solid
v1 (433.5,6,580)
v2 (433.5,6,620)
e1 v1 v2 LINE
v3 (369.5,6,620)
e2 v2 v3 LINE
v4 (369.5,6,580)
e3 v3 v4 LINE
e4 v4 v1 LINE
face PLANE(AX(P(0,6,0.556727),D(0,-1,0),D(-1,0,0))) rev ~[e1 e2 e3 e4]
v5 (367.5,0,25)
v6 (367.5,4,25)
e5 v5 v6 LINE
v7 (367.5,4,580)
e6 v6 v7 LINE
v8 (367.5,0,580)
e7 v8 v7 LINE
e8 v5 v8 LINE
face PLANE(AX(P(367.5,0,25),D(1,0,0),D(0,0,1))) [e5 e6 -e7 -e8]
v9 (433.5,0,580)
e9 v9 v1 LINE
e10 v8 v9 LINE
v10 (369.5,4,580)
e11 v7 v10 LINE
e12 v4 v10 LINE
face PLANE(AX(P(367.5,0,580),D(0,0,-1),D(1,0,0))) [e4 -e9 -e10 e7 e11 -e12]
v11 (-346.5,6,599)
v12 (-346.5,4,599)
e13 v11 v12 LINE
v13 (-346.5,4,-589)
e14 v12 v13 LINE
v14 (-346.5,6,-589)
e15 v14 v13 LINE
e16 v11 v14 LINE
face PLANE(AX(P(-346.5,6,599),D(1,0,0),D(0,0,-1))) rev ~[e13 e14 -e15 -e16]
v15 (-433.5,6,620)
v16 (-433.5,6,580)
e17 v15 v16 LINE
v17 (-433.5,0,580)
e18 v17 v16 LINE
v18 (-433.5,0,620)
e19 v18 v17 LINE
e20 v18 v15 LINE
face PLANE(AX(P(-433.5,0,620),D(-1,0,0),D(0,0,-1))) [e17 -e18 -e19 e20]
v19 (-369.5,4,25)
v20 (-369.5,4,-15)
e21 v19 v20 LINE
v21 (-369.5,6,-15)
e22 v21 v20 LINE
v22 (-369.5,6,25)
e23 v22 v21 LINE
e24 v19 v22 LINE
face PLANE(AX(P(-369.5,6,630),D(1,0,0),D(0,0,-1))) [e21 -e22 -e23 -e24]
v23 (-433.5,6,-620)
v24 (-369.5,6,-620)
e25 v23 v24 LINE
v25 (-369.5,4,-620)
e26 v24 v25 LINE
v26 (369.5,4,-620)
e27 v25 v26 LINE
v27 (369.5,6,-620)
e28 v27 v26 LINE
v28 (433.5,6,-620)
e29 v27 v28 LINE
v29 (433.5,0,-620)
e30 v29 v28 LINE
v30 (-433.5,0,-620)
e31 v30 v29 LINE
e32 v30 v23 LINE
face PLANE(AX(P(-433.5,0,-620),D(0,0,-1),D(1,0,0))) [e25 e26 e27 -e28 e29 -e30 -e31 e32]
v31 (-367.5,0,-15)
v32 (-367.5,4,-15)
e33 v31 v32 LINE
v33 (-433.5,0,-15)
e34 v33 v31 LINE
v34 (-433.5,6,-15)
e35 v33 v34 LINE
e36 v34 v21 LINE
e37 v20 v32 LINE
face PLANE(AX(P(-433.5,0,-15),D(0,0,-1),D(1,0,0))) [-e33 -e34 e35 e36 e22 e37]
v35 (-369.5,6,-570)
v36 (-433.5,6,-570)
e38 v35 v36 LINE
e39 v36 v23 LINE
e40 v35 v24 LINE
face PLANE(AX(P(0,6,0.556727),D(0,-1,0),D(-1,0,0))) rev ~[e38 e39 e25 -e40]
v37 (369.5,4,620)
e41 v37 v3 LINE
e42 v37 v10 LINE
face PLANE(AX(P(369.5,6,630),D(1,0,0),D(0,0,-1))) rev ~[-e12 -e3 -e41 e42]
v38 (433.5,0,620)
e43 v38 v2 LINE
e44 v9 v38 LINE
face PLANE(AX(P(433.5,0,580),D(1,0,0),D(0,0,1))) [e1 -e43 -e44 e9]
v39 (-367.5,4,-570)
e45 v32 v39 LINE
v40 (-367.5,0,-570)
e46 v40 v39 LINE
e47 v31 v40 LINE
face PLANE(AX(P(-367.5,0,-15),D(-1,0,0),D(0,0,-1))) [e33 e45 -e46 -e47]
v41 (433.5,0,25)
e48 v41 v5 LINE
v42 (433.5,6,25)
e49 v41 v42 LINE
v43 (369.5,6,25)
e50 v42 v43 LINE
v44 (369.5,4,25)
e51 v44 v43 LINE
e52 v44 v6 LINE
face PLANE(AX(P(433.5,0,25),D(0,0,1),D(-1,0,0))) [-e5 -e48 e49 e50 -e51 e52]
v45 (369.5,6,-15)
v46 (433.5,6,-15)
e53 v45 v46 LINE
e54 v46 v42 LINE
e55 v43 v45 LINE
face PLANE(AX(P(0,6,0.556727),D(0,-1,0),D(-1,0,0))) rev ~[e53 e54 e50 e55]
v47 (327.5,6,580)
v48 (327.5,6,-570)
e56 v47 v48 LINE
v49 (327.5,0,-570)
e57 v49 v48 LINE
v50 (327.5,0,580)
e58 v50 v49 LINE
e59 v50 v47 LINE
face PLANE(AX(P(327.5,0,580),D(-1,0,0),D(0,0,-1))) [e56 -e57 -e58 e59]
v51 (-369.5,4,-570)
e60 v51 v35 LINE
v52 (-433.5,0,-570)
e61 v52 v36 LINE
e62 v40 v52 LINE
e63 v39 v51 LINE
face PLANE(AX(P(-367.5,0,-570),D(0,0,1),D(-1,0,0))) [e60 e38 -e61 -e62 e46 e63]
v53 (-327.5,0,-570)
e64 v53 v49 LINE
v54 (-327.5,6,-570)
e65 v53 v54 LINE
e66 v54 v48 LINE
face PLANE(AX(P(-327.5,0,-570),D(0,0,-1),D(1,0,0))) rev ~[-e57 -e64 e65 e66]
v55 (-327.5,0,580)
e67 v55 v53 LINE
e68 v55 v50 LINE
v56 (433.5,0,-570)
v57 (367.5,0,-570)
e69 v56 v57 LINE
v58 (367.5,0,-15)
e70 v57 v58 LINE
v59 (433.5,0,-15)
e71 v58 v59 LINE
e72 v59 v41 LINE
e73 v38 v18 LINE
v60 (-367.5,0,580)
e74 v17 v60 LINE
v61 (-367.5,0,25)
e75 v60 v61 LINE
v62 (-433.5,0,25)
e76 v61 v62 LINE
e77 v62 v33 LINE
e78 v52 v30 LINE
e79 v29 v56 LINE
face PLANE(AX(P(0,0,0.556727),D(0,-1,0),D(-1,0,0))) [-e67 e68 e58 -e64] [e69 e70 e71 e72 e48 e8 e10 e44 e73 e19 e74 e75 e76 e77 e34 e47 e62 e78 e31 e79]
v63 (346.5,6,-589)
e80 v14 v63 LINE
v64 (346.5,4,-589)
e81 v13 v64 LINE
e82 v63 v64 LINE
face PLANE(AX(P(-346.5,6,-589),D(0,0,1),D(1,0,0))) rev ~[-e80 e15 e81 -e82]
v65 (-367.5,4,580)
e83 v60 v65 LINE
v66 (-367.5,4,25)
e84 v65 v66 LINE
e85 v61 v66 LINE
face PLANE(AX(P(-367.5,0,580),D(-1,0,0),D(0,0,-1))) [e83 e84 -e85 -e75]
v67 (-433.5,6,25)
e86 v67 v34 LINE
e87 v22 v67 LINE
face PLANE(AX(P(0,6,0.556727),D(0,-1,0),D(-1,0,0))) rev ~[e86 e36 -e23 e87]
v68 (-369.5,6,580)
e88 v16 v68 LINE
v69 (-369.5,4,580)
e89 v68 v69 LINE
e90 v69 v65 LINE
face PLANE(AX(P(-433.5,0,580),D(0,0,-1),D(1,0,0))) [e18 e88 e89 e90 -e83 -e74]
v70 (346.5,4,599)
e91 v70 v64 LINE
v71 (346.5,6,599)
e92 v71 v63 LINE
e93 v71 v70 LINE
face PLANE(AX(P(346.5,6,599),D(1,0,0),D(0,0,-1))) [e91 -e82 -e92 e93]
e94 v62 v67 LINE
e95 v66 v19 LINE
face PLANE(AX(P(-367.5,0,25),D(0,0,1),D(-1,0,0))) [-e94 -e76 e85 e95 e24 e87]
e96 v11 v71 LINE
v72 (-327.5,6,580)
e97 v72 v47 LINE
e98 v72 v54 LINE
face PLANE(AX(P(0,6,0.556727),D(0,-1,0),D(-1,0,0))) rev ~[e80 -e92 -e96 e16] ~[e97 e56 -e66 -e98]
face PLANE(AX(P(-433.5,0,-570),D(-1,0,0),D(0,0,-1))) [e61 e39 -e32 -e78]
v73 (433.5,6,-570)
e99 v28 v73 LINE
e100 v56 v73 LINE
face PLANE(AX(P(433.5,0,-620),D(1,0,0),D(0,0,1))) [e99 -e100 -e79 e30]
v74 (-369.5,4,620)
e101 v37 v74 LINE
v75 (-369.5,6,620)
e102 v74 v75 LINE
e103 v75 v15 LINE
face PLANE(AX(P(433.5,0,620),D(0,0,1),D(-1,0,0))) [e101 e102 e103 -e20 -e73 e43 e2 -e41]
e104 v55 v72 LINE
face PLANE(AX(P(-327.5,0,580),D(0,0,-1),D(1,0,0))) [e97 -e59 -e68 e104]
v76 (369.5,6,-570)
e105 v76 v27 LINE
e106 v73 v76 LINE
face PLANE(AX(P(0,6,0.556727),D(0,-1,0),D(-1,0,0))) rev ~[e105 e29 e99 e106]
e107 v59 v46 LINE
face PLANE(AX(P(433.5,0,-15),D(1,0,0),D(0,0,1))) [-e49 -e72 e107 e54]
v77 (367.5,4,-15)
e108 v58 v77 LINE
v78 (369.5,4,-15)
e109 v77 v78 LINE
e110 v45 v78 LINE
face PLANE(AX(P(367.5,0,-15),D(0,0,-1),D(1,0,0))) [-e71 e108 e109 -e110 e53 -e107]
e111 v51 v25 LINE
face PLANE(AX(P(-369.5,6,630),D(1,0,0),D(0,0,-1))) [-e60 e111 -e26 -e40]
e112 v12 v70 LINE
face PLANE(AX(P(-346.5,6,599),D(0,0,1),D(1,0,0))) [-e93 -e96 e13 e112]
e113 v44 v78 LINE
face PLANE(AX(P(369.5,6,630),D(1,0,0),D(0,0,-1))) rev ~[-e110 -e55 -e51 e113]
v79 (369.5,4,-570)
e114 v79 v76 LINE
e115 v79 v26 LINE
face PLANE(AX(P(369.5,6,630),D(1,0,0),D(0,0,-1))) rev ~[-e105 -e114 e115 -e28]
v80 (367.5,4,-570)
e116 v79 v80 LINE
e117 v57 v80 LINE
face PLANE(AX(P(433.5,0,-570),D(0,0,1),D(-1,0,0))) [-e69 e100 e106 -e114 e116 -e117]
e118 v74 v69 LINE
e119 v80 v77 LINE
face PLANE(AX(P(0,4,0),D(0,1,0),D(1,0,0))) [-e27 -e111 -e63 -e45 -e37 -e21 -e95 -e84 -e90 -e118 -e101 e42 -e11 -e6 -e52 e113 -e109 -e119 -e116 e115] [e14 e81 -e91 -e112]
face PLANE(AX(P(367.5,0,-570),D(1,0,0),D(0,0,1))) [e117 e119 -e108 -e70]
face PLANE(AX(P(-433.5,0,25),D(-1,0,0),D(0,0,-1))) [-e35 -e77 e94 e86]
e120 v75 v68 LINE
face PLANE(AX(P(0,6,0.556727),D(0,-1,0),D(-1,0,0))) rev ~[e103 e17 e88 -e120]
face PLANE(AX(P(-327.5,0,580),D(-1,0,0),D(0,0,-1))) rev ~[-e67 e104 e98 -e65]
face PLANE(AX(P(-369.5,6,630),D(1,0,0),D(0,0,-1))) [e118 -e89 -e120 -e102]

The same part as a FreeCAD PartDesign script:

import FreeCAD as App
import Part
import Sketcher

V = App.Vector
Q = App.Units.Quantity


def add_polygon(sketch, points):
    """Adds a closed chain of lines whose ends are joined by coincident constraints."""
    first, n = sketch.GeometryCount, len(points)
    for a, b in zip(points, points[1:] + points[:1]):
        sketch.addGeometry(Part.LineSegment(App.Vector(*a, 0), App.Vector(*b, 0)), False)
    for i in range(n):
        sketch.addConstraint(Sketcher.Constraint("Coincident", first + i, 2, first + (i + 1) % n, 1))

doc = App.newDocument("Part")
body = doc.addObject("PartDesign::Body", "Body")

sketch1 = doc.addObject("Sketcher::SketchObject", "Sketch")
body.addObject(sketch1)
sketch1.AttachmentSupport = (doc.XZ_Plane, [""])
sketch1.MapMode = "FlatFace"
add_polygon(sketch1, [(434, -620), (-434, -620), (-434, -570), (-368, -570), (-368, -15), (-434, -15), (-434, 25), (-368, 25), (-368, 580), (-434, 580), (-434, 620), (434, 620), (434, 580), (368, 580), (368, 25), (434, 25), (434, -15), (368, -15), (368, -570), (434, -570)])
add_polygon(sketch1, [(-328, 580), (-328, -570), (328, -570), (328, 580)])
sketch1.addConstraint(Sketcher.Constraint("Horizontal", 0))
sketch1.addConstraint(Sketcher.Constraint("Vertical", 1))
sketch1.addConstraint(Sketcher.Constraint("Horizontal", 2))
sketch1.addConstraint(Sketcher.Constraint("Vertical", 3))
sketch1.addConstraint(Sketcher.Constraint("Horizontal", 4))
sketch1.addConstraint(Sketcher.Constraint("Vertical", 5))
sketch1.addConstraint(Sketcher.Constraint("Horizontal", 6))
sketch1.addConstraint(Sketcher.Constraint("Vertical", 7))
sketch1.addConstraint(Sketcher.Constraint("Horizontal", 8))
sketch1.addConstraint(Sketcher.Constraint("Vertical", 9))
sketch1.addConstraint(Sketcher.Constraint("Horizontal", 10))
sketch1.addConstraint(Sketcher.Constraint("Vertical", 11))
sketch1.addConstraint(Sketcher.Constraint("Horizontal", 12))
sketch1.addConstraint(Sketcher.Constraint("Vertical", 13))
sketch1.addConstraint(Sketcher.Constraint("Horizontal", 14))
sketch1.addConstraint(Sketcher.Constraint("Vertical", 15))
sketch1.addConstraint(Sketcher.Constraint("Horizontal", 16))
sketch1.addConstraint(Sketcher.Constraint("Vertical", 17))
sketch1.addConstraint(Sketcher.Constraint("Horizontal", 18))
sketch1.addConstraint(Sketcher.Constraint("Vertical", 19))
sketch1.addConstraint(Sketcher.Constraint("Vertical", 20))
sketch1.addConstraint(Sketcher.Constraint("Horizontal", 21))
sketch1.addConstraint(Sketcher.Constraint("Vertical", 22))
sketch1.addConstraint(Sketcher.Constraint("Horizontal", 23))
sketch1.addConstraint(Sketcher.Constraint("Symmetric", 0, 2, 10, 2, -1, 1))
sketch1.addConstraint(Sketcher.Constraint("Symmetric", 8, 2, 11, 2, -2))
sketch1.addConstraint(Sketcher.Constraint("Symmetric", 6, 2, 13, 2, -2))
sketch1.addConstraint(Sketcher.Constraint("Symmetric", 4, 2, 15, 2, -2))
sketch1.addConstraint(Sketcher.Constraint("Symmetric", 2, 2, 17, 2, -2))
sketch1.addConstraint(Sketcher.Constraint("Horizontal", 18, 2, 20, 2))
sketch1.addConstraint(Sketcher.Constraint("Horizontal", 12, 2, 22, 2))
sketch1.addConstraint(Sketcher.Constraint("Vertical", 1, 2, 4, 2))
sketch1.addConstraint(Sketcher.Constraint("Vertical", 3, 2, 6, 2))
sketch1.addConstraint(Sketcher.Constraint("Vertical", 15, 2, 18, 2))
sketch1.addConstraint(Sketcher.Constraint("Equal", 3, 7))
sketch1.addConstraint(Sketcher.Constraint("Equal", 5, 9))
sketch1.addConstraint(Sketcher.Constraint("DistanceX", 0, 2, 0, 1, Q("867 mm")))
sketch1.addConstraint(Sketcher.Constraint("DistanceX", 2, 1, 2, 2, Q("66 mm")))
sketch1.addConstraint(Sketcher.Constraint("DistanceX", 21, 1, 21, 2, Q("655 mm")))
sketch1.addConstraint(Sketcher.Constraint("DistanceY", 1, 1, 1, 2, Q("50 mm")))
sketch1.addConstraint(Sketcher.Constraint("DistanceY", 3, 1, 3, 2, Q("555 mm")))
sketch1.addConstraint(Sketcher.Constraint("DistanceY", 5, 1, 5, 2, Q("40 mm")))
sketch1.addConstraint(Sketcher.Constraint("DistanceX", 2, 2, 20, 2, Q("40 mm")))
pad1 = doc.addObject("PartDesign::Pad", "Pad")
body.addObject(pad1)
pad1.Profile = sketch1
pad1.Length = 6
pad1.Reversed = True

sketch2 = doc.addObject("Sketcher::SketchObject", "Sketch001")
body.addObject(sketch2)
sketch2.AttachmentSupport = (doc.XZ_Plane, [""])
sketch2.MapMode = "FlatFace"
sketch2.AttachmentOffset = App.Placement(V(0, 0, -6), App.Rotation())
add_polygon(sketch2, [(-370, -630), (-370, 630), (370, 630), (370, -630)])
add_polygon(sketch2, [(346, 599), (-346, 599), (-346, -589), (346, -589)])
sketch2.addConstraint(Sketcher.Constraint("Vertical", 0))
sketch2.addConstraint(Sketcher.Constraint("Horizontal", 1))
sketch2.addConstraint(Sketcher.Constraint("Vertical", 2))
sketch2.addConstraint(Sketcher.Constraint("Horizontal", 3))
sketch2.addConstraint(Sketcher.Constraint("Horizontal", 4))
sketch2.addConstraint(Sketcher.Constraint("Vertical", 5))
sketch2.addConstraint(Sketcher.Constraint("Horizontal", 6))
sketch2.addConstraint(Sketcher.Constraint("Vertical", 7))
sketch2.addConstraint(Sketcher.Constraint("Symmetric", 0, 2, 2, 2, -1, 1))
sketch2.addConstraint(Sketcher.Constraint("DistanceX", 1, 1, 1, 2, Q("739 mm")))
sketch2.addConstraint(Sketcher.Constraint("DistanceX", 4, 2, 4, 1, Q("693 mm")))
sketch2.addConstraint(Sketcher.Constraint("DistanceY", 0, 1, 0, 2, Q("1260 mm")))
sketch2.addConstraint(Sketcher.Constraint("DistanceY", 5, 2, 5, 1, Q("1188 mm")))
sketch2.addConstraint(Sketcher.Constraint("DistanceY", -1, 1, 4, 2, Q("599 mm")))
sketch2.addConstraint(Sketcher.Constraint("DistanceX", 0, 2, 4, 2, Q("23 mm")))
pocket1 = doc.addObject("PartDesign::Pocket", "Pocket")
body.addObject(pocket1)
pocket1.Profile = sketch2
pocket1.Length = 2
pocket1.Reversed = True

doc.recompute()
